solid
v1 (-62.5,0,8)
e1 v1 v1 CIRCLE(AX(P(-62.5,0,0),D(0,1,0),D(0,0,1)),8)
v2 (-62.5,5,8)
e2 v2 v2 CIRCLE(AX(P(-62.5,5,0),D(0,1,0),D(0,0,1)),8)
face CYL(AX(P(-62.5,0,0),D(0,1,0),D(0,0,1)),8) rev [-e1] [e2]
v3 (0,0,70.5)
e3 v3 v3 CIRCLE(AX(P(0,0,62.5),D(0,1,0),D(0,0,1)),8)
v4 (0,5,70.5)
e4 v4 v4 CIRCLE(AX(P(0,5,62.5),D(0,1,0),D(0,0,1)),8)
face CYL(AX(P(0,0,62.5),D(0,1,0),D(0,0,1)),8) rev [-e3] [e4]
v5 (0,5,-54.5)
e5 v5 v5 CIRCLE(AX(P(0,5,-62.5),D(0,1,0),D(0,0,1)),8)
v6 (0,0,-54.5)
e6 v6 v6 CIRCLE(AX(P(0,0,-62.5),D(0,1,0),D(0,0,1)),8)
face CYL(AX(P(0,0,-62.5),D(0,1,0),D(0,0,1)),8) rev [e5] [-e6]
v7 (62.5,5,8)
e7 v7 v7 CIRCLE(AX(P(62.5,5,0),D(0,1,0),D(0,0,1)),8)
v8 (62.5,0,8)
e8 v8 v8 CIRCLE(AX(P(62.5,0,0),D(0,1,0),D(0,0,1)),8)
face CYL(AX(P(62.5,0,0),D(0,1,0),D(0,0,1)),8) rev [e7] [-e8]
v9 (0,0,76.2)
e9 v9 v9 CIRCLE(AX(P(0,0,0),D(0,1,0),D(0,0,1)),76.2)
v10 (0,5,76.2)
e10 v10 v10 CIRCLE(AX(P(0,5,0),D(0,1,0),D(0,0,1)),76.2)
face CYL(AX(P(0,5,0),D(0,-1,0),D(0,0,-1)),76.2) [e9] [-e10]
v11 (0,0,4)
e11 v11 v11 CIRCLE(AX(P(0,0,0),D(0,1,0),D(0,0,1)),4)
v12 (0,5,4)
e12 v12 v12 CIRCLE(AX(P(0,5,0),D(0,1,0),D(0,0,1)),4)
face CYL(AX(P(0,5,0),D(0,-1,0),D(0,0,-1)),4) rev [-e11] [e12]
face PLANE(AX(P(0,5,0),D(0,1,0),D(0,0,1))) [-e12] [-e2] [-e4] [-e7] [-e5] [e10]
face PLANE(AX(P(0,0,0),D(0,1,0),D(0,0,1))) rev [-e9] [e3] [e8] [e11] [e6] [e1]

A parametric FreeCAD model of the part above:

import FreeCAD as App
import Part
import Sketcher

V = App.Vector
Q = App.Units.Quantity

doc = App.newDocument("Part")
body = doc.addObject("PartDesign::Body", "Body")

# Sketch on XZ plane
sketch1 = doc.addObject("Sketcher::SketchObject", "Sketch")
body.addObject(sketch1)
sketch1.AttachmentSupport = (doc.XZ_Plane, [""])
sketch1.MapMode = "FlatFace"
sketch1.addGeometry([
    Part.Circle(V(0, 0, 0), V(0, 0, 1), 76.2),
    Part.Circle(V(0, 0, 0), V(0, 0, 1), 4),
], False)
sketch1.addConstraint([
    Sketcher.Constraint("Coincident", 0, 3, -1, 1),
    Sketcher.Constraint("Coincident", 1, 3, -1, 1),
    Sketcher.Constraint("Diameter", 1, Q("8 mm")),
    Sketcher.Constraint("Diameter", 0, Q("152.4 mm")),
])
pad1 = doc.addObject("PartDesign::Pad", "Pad")
body.addObject(pad1)
pad1.Profile = sketch1
pad1.Length = 5
pad1.Reversed = True

# Sketch on XZ plane
sketch2 = doc.addObject("Sketcher::SketchObject", "Sketch001")
body.addObject(sketch2)
sketch2.AttachmentSupport = (doc.XZ_Plane, [""])
sketch2.MapMode = "FlatFace"
sketch2.AttachmentOffset = App.Placement(V(0, 0, -5), App.Rotation())
sketch2.addGeometry([
    Part.Circle(V(0, 62, 0), V(0, 0, 1), 8),
    Part.Circle(V(-62, 0, 0), V(0, 0, 1), 8),
    Part.Circle(V(0, -62, 0), V(0, 0, 1), 8),
    Part.Circle(V(62, 0, 0), V(0, 0, 1), 8),
], False)
sketch2.addConstraint([
    Sketcher.Constraint("Equal", 0, 1),
    Sketcher.Constraint("Equal", 1, 2),
    Sketcher.Constraint("Equal", 2, 3),
    Sketcher.Constraint("Symmetric", 0, 3, 2, 3, -1, 1),
    Sketcher.Constraint("Symmetric", 1, 3, 3, 3, -1, 1),
    Sketcher.Constraint("PointOnObject", 0, 3, -2),
    Sketcher.Constraint("PointOnObject", 1, 3, -1),
    Sketcher.Constraint("Diameter", 0, Q("16 mm")),
    Sketcher.Constraint("DistanceY", 2, 3, 0, 3, Q("125 mm")),
    Sketcher.Constraint("DistanceX", 1, 3, 3, 3, Q("125 mm")),
])
pocket1 = doc.addObject("PartDesign::Pocket", "Pocket")
body.addObject(pocket1)
pocket1.Profile = sketch2
pocket1.Type = "ThroughAll"
pocket1.Reversed = True

doc.recompute()
